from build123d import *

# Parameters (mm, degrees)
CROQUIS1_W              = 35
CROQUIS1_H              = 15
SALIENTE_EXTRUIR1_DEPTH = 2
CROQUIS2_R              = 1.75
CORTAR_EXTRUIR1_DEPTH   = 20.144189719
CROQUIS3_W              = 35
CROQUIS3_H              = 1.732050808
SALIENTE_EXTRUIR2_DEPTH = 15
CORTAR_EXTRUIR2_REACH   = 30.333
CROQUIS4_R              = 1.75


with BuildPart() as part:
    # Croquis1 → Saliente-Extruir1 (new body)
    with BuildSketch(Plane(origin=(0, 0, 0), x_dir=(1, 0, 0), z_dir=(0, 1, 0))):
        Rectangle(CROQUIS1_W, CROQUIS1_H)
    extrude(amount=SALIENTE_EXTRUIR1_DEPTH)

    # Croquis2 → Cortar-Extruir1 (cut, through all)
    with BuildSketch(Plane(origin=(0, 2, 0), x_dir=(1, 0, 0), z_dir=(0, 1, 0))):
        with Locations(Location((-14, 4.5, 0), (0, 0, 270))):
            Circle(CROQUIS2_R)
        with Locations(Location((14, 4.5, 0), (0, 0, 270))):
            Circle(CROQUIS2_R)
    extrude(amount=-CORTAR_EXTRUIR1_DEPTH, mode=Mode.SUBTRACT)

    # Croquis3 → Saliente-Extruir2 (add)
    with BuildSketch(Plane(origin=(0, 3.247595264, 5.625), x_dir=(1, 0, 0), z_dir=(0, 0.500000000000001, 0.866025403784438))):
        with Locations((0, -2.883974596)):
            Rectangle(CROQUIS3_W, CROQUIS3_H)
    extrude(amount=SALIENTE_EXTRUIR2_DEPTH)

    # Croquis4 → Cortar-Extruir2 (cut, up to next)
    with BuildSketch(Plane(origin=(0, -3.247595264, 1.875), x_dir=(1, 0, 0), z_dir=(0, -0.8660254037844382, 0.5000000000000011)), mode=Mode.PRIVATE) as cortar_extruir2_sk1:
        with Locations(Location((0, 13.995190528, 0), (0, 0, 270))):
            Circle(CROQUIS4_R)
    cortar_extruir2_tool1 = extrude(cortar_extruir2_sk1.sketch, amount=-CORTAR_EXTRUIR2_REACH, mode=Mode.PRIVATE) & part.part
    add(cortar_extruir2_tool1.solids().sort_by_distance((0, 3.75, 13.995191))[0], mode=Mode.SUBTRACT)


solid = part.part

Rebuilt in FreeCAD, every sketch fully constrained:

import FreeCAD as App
import Part
import Sketcher
Q = App.Units.Quantity

doc = App.newDocument("Part")
body = doc.addObject("PartDesign::Body", "Body")

sketch1 = doc.addObject("Sketcher::SketchObject", "Sketch")
body.addObject(sketch1)
sketch1.AttachmentSupport = (doc.XZ_Plane, [""])
sketch1.MapMode = "FlatFace"
sketch1.addGeometry(Part.LineSegment(App.Vector(-18, -8, 0), App.Vector(-18, 8, 0)), False)
sketch1.addGeometry(Part.LineSegment(App.Vector(-18, 8, 0), App.Vector(18, 8, 0)), False)
sketch1.addGeometry(Part.LineSegment(App.Vector(18, 8, 0), App.Vector(18, -8, 0)), False)
sketch1.addGeometry(Part.LineSegment(App.Vector(18, -8, 0), App.Vector(-18, -8, 0)), False)
sketch1.addConstraint(Sketcher.Constraint("Coincident", 0, 2, 1, 1))
sketch1.addConstraint(Sketcher.Constraint("Coincident", 1, 2, 2, 1))
sketch1.addConstraint(Sketcher.Constraint("Coincident", 2, 2, 3, 1))
sketch1.addConstraint(Sketcher.Constraint("Coincident", 3, 2, 0, 1))
sketch1.addConstraint(Sketcher.Constraint("Vertical", 0))
sketch1.addConstraint(Sketcher.Constraint("Horizontal", 1))
sketch1.addConstraint(Sketcher.Constraint("Vertical", 2))
sketch1.addConstraint(Sketcher.Constraint("Horizontal", 3))
sketch1.addConstraint(Sketcher.Constraint("Symmetric", 0, 2, 2, 2, -1, 1))
sketch1.addConstraint(Sketcher.Constraint("DistanceX", 1, 1, 1, 2, Q("35 mm")))
sketch1.addConstraint(Sketcher.Constraint("DistanceY", 0, 1, 0, 2, Q("15 mm")))
pad1 = doc.addObject("PartDesign::Pad", "Pad")
body.addObject(pad1)
pad1.Profile = sketch1
pad1.Length = 2
pad1.Reversed = True

sketch2 = doc.addObject("Sketcher::SketchObject", "Sketch001")
body.addObject(sketch2)
sketch2.AttachmentSupport = (doc.XZ_Plane, [""])
sketch2.MapMode = "FlatFace"
sketch2.AttachmentOffset = App.Placement(App.Vector(0, 0, -2), App.Rotation())
sketch2.addGeometry(Part.Circle(App.Vector(-14, -4.5, 0), App.Vector(0, 0, 1), 1.8), False)
sketch2.addGeometry(Part.Circle(App.Vector(14, -4.5, 0), App.Vector(0, 0, 1), 1.8), False)
sketch2.addConstraint(Sketcher.Constraint("Equal", 0, 1))
sketch2.addConstraint(Sketcher.Constraint("Symmetric", 0, 3, 1, 3, -2))
sketch2.addConstraint(Sketcher.Constraint("Diameter", 0, Q("3.5 mm")))
sketch2.addConstraint(Sketcher.Constraint("DistanceX", 0, 3, -1, 1, Q("14 mm")))
sketch2.addConstraint(Sketcher.Constraint("DistanceY", 0, 3, -1, 1, Q("4.5 mm")))
pocket1 = doc.addObject("PartDesign::Pocket", "Pocket")
body.addObject(pocket1)
pocket1.Profile = sketch2
pocket1.Type = "ThroughAll"
pocket1.Reversed = True

sketch3 = doc.addObject("Sketcher::SketchObject", "Sketch002")
body.addObject(sketch3)
sketch3.Placement = App.Placement(App.Vector(0, 3.247595, 5.625), App.Rotation(App.Vector(1, 0, 0), App.Vector(0, 0.866025404, -0.5), App.Vector(0, 0.5, 0.866025404), "ZXY"))
sketch3.addGeometry(Part.LineSegment(App.Vector(-17.5, -2, 0), App.Vector(-17.5, -3.8, 0)), False)
sketch3.addGeometry(Part.LineSegment(App.Vector(-17.5, -3.8, 0), App.Vector(17.5, -3.8, 0)), False)
sketch3.addGeometry(Part.LineSegment(App.Vector(17.5, -3.8, 0), App.Vector(17.5, -2, 0)), False)
sketch3.addGeometry(Part.LineSegment(App.Vector(17.5, -2, 0), App.Vector(-17.5, -2, 0)), False)
sketch3.addConstraint(Sketcher.Constraint("Coincident", 0, 2, 1, 1))
sketch3.addConstraint(Sketcher.Constraint("Coincident", 1, 2, 2, 1))
sketch3.addConstraint(Sketcher.Constraint("Coincident", 2, 2, 3, 1))
sketch3.addConstraint(Sketcher.Constraint("Coincident", 3, 2, 0, 1))
sketch3.addConstraint(Sketcher.Constraint("Vertical", 0))
sketch3.addConstraint(Sketcher.Constraint("Horizontal", 1))
sketch3.addConstraint(Sketcher.Constraint("Vertical", 2))
sketch3.addConstraint(Sketcher.Constraint("Horizontal", 3))
sketch3.addConstraint(Sketcher.Constraint("DistanceX", 1, 1, 1, 2, Q("35 mm")))
sketch3.addConstraint(Sketcher.Constraint("DistanceX", 0, 2, -1, 1, Q("17.5 mm")))
sketch3.addConstraint(Sketcher.Constraint("DistanceY", 0, 2, -1, 1, Q("3.75 mm")))
sketch3.addConstraint(Sketcher.Constraint("DistanceY", 0, 2, 0, 1, Q("1.732051 mm")))
pad2 = doc.addObject("PartDesign::Pad", "Pad001")
body.addObject(pad2)
pad2.Profile = sketch3
pad2.Length = 15

sketch4 = doc.addObject("Sketcher::SketchObject", "Sketch003")
body.addObject(sketch4)
sketch4.Placement = App.Placement(App.Vector(0, -3.247595, 1.875), App.Rotation(App.Vector(1, 0, 0), App.Vector(0, 0.5, 0.866025404), App.Vector(0, -0.866025404, 0.5), "ZXY"))
sketch4.addGeometry(Part.Circle(App.Vector(0, 14, 0), App.Vector(0, 0, 1), 1.8), False)
sketch4.addConstraint(Sketcher.Constraint("PointOnObject", 0, 3, -2))
sketch4.addConstraint(Sketcher.Constraint("Diameter", 0, Q("3.5 mm")))
sketch4.addConstraint(Sketcher.Constraint("DistanceY", -1, 1, 0, 3, Q("13.995191 mm")))
pocket2 = doc.addObject("PartDesign::Pocket", "Pocket001")
body.addObject(pocket2)
pocket2.Profile = sketch4
pocket2.Type = "UpToFirst"

doc.recompute()
